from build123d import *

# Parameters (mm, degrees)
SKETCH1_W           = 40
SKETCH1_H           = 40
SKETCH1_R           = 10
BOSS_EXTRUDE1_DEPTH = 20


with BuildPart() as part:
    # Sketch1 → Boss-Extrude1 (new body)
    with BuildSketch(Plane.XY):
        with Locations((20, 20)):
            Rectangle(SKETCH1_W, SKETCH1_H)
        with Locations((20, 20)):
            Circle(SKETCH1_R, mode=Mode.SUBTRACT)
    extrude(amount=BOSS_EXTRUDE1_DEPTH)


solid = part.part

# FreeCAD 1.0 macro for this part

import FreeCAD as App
import Part
import Sketcher
from FreeCAD import Vector
Q = App.Units.Quantity


def add_polygon(sketch, points):
    """Adds a closed chain of lines whose ends are joined by coincident constraints."""
    first, n = sketch.GeometryCount, len(points)
    for a, b in zip(points, points[1:] + points[:1]):
        sketch.addGeometry(Part.LineSegment(App.Vector(*a, 0), App.Vector(*b, 0)), False)
    for i in range(n):
        sketch.addConstraint(Sketcher.Constraint("Coincident", first + i, 2, first + (i + 1) % n, 1))

doc = App.newDocument("Part")
params = doc.addObject("Spreadsheet::Sheet", "Params")
for row, (alias, value) in enumerate([
    ("sketch1_diameter", "20 mm"),
    ("sketch1_width", "40 mm"),
    ("pad1_length", "20 mm"),
], start=1):
    params.set(f"A{row}", alias)
    params.set(f"B{row}", "=" + value)
    params.setAlias(f"B{row}", alias)

body = doc.addObject("PartDesign::Body", "Body")

# Sketch on XY plane
sketch1 = body.newObject("Sketcher::SketchObject", "Sketch")
sketch1.AttachmentSupport = (doc.getObject("XY_Plane"), [""])
sketch1.MapMode = "FlatFace"
add_polygon(sketch1, [(0, 40), (0, 0), (40, 0), (40, 40)])  # lines 0-3
sketch1.addGeometry(Part.Circle(Vector(20, 20, 0), Vector(0, 0, 1), 10), False)  # 4
sketch1.addConstraint(Sketcher.Constraint("Vertical", 0))
sketch1.addConstraint(Sketcher.Constraint("Horizontal", 1))
sketch1.addConstraint(Sketcher.Constraint("Vertical", 2))
sketch1.addConstraint(Sketcher.Constraint("Horizontal", 3))
sketch1.addConstraint(Sketcher.Constraint("Coincident", 0, 2, -1, 1))
sketch1.addConstraint(Sketcher.Constraint("Equal", 3, 0))
sketch1.addConstraint(Sketcher.Constraint("Diameter", 4, Q("20 mm")))
sketch1.addConstraint(Sketcher.Constraint("DistanceX", 1, 1, 1, 2, Q("40 mm")))
sketch1.addConstraint(Sketcher.Constraint("DistanceX", -1, 1, 4, 3, Q("20 mm")))
sketch1.addConstraint(Sketcher.Constraint("DistanceY", -1, 1, 4, 3, Q("20 mm")))
sketch1.setExpression("Constraints[10]", "Params.sketch1_diameter")
sketch1.setExpression("Constraints[11]", "Params.sketch1_width")
pad1 = body.newObject("PartDesign::Pad", "Pad")
pad1.Profile = sketch1
pad1.setExpression("Length", "Params.pad1_length")

doc.recompute()
